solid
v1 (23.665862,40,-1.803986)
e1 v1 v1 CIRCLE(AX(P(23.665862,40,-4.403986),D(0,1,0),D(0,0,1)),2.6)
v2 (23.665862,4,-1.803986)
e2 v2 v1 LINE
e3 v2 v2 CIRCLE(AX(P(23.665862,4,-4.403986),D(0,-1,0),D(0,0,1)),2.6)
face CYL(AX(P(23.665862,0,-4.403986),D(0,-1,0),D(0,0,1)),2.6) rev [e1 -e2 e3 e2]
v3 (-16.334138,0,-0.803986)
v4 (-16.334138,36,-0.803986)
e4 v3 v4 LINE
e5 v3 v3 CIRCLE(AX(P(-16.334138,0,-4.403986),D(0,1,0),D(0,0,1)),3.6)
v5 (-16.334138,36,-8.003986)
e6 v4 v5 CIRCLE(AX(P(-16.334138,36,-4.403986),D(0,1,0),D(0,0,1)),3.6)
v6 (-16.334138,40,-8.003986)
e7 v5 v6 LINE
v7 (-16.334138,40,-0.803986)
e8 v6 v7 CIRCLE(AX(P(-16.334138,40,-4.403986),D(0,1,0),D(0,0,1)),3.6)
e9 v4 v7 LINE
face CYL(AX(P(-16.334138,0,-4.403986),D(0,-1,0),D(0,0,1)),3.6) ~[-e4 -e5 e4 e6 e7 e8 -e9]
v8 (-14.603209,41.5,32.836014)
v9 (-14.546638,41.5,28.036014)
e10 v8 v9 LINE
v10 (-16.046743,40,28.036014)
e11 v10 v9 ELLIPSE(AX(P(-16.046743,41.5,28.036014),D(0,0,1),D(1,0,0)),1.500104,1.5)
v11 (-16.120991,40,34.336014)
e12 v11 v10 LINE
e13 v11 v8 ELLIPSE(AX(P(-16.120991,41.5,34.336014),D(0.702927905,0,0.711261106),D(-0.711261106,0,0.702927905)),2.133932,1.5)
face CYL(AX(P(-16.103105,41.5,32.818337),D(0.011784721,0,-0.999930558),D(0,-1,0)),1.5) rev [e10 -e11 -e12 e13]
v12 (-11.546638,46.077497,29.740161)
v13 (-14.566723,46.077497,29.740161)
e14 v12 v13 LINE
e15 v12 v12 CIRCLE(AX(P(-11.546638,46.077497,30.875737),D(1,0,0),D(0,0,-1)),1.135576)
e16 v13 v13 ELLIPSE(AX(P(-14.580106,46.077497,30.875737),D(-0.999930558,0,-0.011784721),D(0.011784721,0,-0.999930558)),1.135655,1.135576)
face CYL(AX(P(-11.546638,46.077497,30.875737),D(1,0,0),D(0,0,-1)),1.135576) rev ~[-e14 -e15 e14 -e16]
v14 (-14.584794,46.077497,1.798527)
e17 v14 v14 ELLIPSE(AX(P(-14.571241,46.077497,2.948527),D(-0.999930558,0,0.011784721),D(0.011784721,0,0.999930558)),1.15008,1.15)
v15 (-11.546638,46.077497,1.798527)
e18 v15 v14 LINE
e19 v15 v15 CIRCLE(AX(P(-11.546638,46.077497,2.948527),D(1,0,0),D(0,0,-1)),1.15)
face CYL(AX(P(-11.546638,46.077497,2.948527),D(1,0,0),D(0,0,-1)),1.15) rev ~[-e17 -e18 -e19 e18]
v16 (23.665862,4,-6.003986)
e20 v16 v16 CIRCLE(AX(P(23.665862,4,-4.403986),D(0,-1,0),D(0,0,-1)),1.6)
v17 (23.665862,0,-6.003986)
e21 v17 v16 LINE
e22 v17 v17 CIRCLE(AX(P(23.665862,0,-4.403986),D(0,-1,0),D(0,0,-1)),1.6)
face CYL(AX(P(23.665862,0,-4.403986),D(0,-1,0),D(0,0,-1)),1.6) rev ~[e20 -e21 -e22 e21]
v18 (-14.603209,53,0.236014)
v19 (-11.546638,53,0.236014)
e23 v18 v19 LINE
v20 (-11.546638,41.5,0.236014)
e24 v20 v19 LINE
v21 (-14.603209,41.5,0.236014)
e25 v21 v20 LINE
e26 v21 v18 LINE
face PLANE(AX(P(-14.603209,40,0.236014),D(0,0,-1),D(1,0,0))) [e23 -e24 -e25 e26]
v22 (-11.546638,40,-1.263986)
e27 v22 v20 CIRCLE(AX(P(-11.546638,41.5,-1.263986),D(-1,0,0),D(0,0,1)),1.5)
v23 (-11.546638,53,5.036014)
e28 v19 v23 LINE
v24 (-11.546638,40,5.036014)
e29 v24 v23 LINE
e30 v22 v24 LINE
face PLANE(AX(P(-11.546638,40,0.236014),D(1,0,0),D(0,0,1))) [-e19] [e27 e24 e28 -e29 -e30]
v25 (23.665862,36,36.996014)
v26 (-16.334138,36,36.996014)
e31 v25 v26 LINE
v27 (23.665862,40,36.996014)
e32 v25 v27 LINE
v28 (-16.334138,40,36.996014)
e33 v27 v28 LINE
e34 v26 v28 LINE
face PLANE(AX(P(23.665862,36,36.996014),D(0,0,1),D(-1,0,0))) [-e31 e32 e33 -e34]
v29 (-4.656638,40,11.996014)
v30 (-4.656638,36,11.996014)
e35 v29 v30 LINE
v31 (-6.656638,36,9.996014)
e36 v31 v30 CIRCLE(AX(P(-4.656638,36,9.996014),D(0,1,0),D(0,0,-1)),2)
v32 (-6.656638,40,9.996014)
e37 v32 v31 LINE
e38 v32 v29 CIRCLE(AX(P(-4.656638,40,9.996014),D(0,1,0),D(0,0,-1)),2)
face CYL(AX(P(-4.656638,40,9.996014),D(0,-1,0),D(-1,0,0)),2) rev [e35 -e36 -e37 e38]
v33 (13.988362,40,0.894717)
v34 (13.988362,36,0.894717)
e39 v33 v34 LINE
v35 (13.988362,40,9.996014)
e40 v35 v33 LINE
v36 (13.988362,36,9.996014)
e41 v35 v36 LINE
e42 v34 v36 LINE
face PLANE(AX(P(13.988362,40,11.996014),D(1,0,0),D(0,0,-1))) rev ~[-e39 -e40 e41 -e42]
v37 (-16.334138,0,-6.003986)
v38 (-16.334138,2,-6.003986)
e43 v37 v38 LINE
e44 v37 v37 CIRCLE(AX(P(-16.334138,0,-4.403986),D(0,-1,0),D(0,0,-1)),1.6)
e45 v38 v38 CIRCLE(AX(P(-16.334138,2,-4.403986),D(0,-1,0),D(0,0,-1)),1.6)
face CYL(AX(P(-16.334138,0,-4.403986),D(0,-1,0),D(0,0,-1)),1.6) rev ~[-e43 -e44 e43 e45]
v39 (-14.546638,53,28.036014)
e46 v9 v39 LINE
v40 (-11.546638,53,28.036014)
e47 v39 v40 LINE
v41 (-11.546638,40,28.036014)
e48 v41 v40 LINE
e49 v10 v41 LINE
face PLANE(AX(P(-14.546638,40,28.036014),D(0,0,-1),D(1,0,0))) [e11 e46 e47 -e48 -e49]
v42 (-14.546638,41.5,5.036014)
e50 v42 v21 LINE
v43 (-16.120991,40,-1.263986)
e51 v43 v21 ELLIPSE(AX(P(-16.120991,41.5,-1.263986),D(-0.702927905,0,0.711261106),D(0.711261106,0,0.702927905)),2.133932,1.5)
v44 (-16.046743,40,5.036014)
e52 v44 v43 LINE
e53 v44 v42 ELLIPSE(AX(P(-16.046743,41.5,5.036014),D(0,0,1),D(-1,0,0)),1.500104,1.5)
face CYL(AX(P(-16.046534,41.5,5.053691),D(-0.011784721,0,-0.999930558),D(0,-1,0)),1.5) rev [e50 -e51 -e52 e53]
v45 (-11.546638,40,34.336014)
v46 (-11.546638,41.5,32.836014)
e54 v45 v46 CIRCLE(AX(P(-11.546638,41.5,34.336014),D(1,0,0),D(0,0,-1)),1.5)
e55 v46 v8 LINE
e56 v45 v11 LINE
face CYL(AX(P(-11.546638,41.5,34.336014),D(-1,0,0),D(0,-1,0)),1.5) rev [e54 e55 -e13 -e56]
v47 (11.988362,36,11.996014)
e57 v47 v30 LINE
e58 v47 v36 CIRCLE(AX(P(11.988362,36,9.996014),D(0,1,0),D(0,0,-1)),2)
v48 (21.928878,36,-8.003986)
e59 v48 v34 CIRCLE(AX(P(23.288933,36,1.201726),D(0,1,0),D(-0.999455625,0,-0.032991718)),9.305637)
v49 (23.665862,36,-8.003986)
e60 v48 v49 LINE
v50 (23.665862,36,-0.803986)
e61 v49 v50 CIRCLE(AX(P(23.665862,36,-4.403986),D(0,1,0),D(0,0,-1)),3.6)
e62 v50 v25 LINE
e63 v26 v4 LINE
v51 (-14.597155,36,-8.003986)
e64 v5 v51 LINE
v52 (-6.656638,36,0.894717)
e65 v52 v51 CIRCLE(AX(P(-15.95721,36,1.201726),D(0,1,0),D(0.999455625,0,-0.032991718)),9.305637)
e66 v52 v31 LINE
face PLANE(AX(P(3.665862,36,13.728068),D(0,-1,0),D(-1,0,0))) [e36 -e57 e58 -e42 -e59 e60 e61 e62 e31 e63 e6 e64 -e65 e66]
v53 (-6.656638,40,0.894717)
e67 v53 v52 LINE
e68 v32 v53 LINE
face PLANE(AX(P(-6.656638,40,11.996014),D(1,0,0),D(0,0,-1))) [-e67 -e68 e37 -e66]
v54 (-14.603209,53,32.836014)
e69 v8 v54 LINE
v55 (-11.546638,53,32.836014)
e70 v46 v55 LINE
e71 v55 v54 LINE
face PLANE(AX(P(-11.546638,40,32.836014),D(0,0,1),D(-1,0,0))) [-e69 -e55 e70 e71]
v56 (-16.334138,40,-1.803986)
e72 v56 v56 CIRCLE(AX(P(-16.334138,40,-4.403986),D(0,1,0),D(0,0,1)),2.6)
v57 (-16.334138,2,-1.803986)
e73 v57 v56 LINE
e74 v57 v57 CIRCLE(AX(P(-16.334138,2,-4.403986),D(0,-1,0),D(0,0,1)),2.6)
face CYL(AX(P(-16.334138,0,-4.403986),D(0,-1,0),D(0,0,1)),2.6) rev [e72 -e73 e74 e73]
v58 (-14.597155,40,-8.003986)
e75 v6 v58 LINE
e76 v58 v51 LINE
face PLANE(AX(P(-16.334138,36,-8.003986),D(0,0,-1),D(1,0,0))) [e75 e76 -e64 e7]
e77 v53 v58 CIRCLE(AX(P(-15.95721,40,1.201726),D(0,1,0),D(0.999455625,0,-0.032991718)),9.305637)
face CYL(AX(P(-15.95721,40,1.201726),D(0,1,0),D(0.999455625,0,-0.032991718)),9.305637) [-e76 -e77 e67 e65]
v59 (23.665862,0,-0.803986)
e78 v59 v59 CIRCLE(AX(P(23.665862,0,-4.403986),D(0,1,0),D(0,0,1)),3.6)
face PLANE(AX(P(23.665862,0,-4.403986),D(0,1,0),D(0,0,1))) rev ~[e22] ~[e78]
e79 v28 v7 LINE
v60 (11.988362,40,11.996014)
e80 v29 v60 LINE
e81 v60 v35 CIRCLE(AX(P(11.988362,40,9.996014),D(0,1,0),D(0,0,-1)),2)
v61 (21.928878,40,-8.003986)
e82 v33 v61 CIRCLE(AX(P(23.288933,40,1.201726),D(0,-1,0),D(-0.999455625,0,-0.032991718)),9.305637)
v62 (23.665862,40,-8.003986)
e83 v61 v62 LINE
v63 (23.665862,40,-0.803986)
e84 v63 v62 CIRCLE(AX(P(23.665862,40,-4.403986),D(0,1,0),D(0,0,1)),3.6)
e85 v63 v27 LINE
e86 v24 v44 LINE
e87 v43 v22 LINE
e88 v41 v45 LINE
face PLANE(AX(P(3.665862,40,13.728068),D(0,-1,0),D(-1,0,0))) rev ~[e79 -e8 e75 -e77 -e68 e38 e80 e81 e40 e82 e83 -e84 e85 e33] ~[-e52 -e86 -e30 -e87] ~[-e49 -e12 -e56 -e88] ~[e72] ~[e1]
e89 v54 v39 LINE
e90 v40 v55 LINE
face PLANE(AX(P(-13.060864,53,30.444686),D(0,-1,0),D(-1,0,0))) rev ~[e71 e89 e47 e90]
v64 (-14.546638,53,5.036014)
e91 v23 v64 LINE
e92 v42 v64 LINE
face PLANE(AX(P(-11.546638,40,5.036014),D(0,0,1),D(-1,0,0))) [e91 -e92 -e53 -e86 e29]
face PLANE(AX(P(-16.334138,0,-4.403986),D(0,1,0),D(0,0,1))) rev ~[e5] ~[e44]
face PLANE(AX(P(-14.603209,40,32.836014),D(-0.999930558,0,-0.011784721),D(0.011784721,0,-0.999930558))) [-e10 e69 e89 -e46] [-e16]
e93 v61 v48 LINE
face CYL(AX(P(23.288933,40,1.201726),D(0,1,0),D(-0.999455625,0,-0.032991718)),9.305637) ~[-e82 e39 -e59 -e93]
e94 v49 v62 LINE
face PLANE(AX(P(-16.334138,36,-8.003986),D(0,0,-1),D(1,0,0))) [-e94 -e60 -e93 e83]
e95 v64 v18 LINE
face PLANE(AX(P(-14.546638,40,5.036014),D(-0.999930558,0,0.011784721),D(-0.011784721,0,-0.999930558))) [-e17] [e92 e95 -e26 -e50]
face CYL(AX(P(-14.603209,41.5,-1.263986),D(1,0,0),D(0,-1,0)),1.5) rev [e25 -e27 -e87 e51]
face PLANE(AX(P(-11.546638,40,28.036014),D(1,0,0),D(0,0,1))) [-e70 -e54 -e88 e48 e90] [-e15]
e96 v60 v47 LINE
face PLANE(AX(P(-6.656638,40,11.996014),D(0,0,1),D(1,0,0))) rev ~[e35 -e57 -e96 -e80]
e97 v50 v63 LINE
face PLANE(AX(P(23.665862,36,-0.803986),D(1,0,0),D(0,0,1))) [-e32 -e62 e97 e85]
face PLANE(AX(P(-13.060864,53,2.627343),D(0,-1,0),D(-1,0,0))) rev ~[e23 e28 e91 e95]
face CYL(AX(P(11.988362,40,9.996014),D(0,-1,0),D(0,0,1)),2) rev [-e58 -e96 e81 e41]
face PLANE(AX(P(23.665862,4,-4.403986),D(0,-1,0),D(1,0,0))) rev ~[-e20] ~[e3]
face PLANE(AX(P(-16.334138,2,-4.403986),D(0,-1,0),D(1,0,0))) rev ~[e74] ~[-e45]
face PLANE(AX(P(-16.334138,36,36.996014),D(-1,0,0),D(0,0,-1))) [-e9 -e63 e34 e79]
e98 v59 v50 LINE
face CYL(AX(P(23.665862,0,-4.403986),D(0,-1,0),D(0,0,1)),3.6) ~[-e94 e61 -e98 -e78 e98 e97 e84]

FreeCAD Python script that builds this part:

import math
import FreeCAD as App
import Part
import Sketcher

V = App.Vector


def edges_at(feature, points):
    """Names of the edges that pass closest to the given points."""
    edges = feature.Shape.Edges
    near = lambda p: min(range(len(edges)), key=lambda i: edges[i].distToShape(Part.Vertex(*p))[0])
    return sorted({f"Edge{near(p) + 1}" for p in points})

doc = App.newDocument("Part")
body = doc.addObject("PartDesign::Body", "Body")

sketch1 = body.newObject("Sketcher::SketchObject", "Sketch")
sketch1.AttachmentSupport = (doc.getObject("XZ_Plane"), [""])
sketch1.MapMode = "FlatFace"
sketch1.addGeometry([
    Part.Circle(V(-16.3, -4.4, 0), V(0, 0, 1), 3.6),
    Part.Circle(V(-16.3, -4.4, 0), V(0, 0, 1), 2.6),
], False)
sketch1.addConstraint([
    Sketcher.Constraint("Coincident", 1, 3, 0, 3),
    Sketcher.Constraint("Diameter", 0, 7.2),
    Sketcher.Constraint("Diameter", 1, 5.2),
    Sketcher.Constraint("DistanceX", 0, 3, -1, 1, 16.334138),
    Sketcher.Constraint("DistanceY", 0, 3, -1, 1, 4.403986),
])
pad1 = body.newObject("PartDesign::Pad", "Pad")
pad1.Profile = sketch1
pad1.Length = 40
pad1.Reversed = True
body2 = doc.addObject("PartDesign::Body", "Body001")

sketch2 = body2.newObject("Sketcher::SketchObject", "Sketch001")
sketch2.AttachmentSupport = (doc.getObject("XZ_Plane001"), [""])
sketch2.MapMode = "FlatFace"
sketch2.addGeometry([
    Part.Circle(V(23.7, -4.4, 0), V(0, 0, 1), 3.6),
    Part.Circle(V(23.7, -4.4, 0), V(0, 0, 1), 2.6),
], False)
sketch2.addConstraint([
    Sketcher.Constraint("Coincident", 1, 3, 0, 3),
    Sketcher.Constraint("Diameter", 0, 7.2),
    Sketcher.Constraint("Diameter", 1, 5.2),
    Sketcher.Constraint("DistanceX", -1, 1, 0, 3, 23.665862),
    Sketcher.Constraint("DistanceY", 0, 3, -1, 1, 4.403986),
])
pad2 = body2.newObject("PartDesign::Pad", "Pad001")
pad2.Profile = sketch2
pad2.Length = 40
pad2.Reversed = True
body.AllowCompound = True
doc.recompute()

boolean = body.newObject("PartDesign::Boolean", "Boolean")
boolean.Type = "Fuse"
boolean.addObjects([body2])

sketch3 = body.newObject("Sketcher::SketchObject", "Sketch002")
sketch3.AttachmentSupport = (doc.getObject("XZ_Plane"), [""])
sketch3.MapMode = "FlatFace"
sketch3.AttachmentOffset = App.Placement(V(0, 0, -36), App.Rotation())
sketch3.addGeometry([
    Part.LineSegment(V(23.7, -8, 0), V(-16.3, -8, 0)),
    Part.ArcOfCircle(Part.Circle(V(-16.3, -4.4, 0), V(0, 0, 1), 3.6), math.radians(-90), math.radians(90)),
    Part.LineSegment(V(-16.3, -0.8, 0), V(-16.3, 37, 0)),
    Part.LineSegment(V(-16.3, 37, 0), V(23.7, 37, 0)),
    Part.LineSegment(V(23.7, 37, 0), V(23.7, -0.8, 0)),
    Part.ArcOfCircle(Part.Circle(V(23.7, -4.4, 0), V(0, 0, 1), 3.6), math.radians(90), math.radians(270)),
], False)
sketch3.addConstraint([
    Sketcher.Constraint("Tangent", 0, 2, 1, 1),
    Sketcher.Constraint("Coincident", 1, 2, 2, 1),
    Sketcher.Constraint("Coincident", 2, 2, 3, 1),
    Sketcher.Constraint("Coincident", 3, 2, 4, 1),
    Sketcher.Constraint("Coincident", 4, 2, 5, 1),
    Sketcher.Constraint("Tangent", 5, 2, 0, 1),
    Sketcher.Constraint("Horizontal", 0),
    Sketcher.Constraint("Vertical", 2),
    Sketcher.Constraint("Horizontal", 3),
    Sketcher.Constraint("Vertical", 4),
    Sketcher.Constraint("Equal", 1, 5),
    Sketcher.Constraint("Vertical", 0, 2, 1, 2),
    Sketcher.Constraint("Vertical", 5, 3, 3, 2),
    Sketcher.Constraint("Radius", 1, 3.6),
    Sketcher.Constraint("DistanceX", 0, 2, 0, 1, 40.0),
    Sketcher.Constraint("DistanceY", 2, 1, 2, 2, 37.8),
    Sketcher.Constraint("DistanceX", 1, 3, -1, 1, 16.334138),
    Sketcher.Constraint("DistanceY", 1, 3, -1, 1, 4.403986),
])
pad3 = body.newObject("PartDesign::Pad", "Pad002")
pad3.Profile = sketch3
pad3.Length = 4
pad3.Reversed = True

sketch4 = body.newObject("Sketcher::SketchObject", "Sketch003")
sketch4.AttachmentSupport = (doc.getObject("XZ_Plane"), [""])
sketch4.MapMode = "FlatFace"
sketch4.AttachmentOffset = App.Placement(V(0, 0, -40), App.Rotation())
sketch4.addGeometry([
    Part.LineSegment(V(-7, -8, 0), V(-7, 12, 0)),
    Part.LineSegment(V(-7, 12, 0), V(14, 12, 0)),
    Part.LineSegment(V(14, 12, 0), V(14, -8, 0)),
    Part.LineSegment(V(14, -8, 0), V(-7, -8, 0)),
], False)
sketch4.addConstraint([
    Sketcher.Constraint("Coincident", 0, 2, 1, 1),
    Sketcher.Constraint("Coincident", 1, 2, 2, 1),
    Sketcher.Constraint("Coincident", 2, 2, 3, 1),
    Sketcher.Constraint("Coincident", 3, 2, 0, 1),
    Sketcher.Constraint("Vertical", 0),
    Sketcher.Constraint("Horizontal", 1),
    Sketcher.Constraint("Vertical", 2),
    Sketcher.Constraint("Horizontal", 3),
    Sketcher.Constraint("DistanceY", 0, 1, 0, 2, 20.0),
    Sketcher.Constraint("DistanceX", 1, 1, 1, 2, 20.645),
    Sketcher.Constraint("DistanceX", 0, 2, -1, 1, 6.656638),
    Sketcher.Constraint("DistanceY", -1, 1, 0, 2, 11.996014),
])
pocket1 = body.newObject("PartDesign::Pocket", "Pocket")
pocket1.Profile = sketch4
pocket1.Length = 10
pocket1.Reversed = True

sketch5 = body.newObject("Sketcher::SketchObject", "Sketch004")
sketch5.AttachmentSupport = (doc.getObject("XZ_Plane"), [""])
sketch5.MapMode = "FlatFace"
sketch5.AttachmentOffset = App.Placement(V(0, 0, -40), App.Rotation())
sketch5.addGeometry([
    Part.LineSegment(V(-14.5, 5, 0), V(-11.5, 5, 0)),
    Part.LineSegment(V(-11.5, 5, 0), V(-11.5, 0.2, 0)),
    Part.LineSegment(V(-11.5, 0.2, 0), V(-14.6, 0.2, 0)),
    Part.LineSegment(V(-14.6, 0.2, 0), V(-14.5, 5, 0)),
    Part.LineSegment(V(-11.5, 28, 0), V(-14.5, 28, 0)),
    Part.LineSegment(V(-14.5, 28, 0), V(-14.6, 32.8, 0)),
    Part.LineSegment(V(-14.6, 32.8, 0), V(-11.5, 32.8, 0)),
    Part.LineSegment(V(-11.5, 32.8, 0), V(-11.5, 28, 0)),
], False)
sketch5.addConstraint([
    Sketcher.Constraint("Coincident", 0, 2, 1, 1),
    Sketcher.Constraint("Coincident", 1, 2, 2, 1),
    Sketcher.Constraint("Coincident", 2, 2, 3, 1),
    Sketcher.Constraint("Coincident", 3, 2, 0, 1),
    Sketcher.Constraint("Coincident", 4, 2, 5, 1),
    Sketcher.Constraint("Coincident", 5, 2, 6, 1),
    Sketcher.Constraint("Coincident", 6, 2, 7, 1),
    Sketcher.Constraint("Coincident", 7, 2, 4, 1),
    Sketcher.Constraint("Horizontal", 0),
    Sketcher.Constraint("Vertical", 1),
    Sketcher.Constraint("Horizontal", 2),
    Sketcher.Constraint("Horizontal", 4),
    Sketcher.Constraint("Horizontal", 6),
    Sketcher.Constraint("Vertical", 7),
    Sketcher.Constraint("Vertical", 3, 2, 4, 2),
    Sketcher.Constraint("Vertical", 2, 2, 5, 2),
    Sketcher.Constraint("Vertical", 1, 2, 6, 2),
    Sketcher.Constraint("Equal", 1, 7),
    Sketcher.Constraint("DistanceX", 0, 1, 0, 2, 3.0),
    Sketcher.Constraint("DistanceY", 1, 2, 1, 1, 4.8),
    Sketcher.Constraint("DistanceY", 3, 2, 4, 2, 23.0),
    Sketcher.Constraint("DistanceX", 2, 2, 2, 1, 3.056571),
    Sketcher.Constraint("DistanceX", 0, 2, -1, 1, 11.546638),
    Sketcher.Constraint("DistanceY", -1, 1, 0, 2, 5.036014),
])
pad4 = body.newObject("PartDesign::Pad", "Pad003")
pad4.Profile = sketch5
pad4.Length = 13
pad4.Reversed = True
doc.recompute()

fillet = body.newObject("PartDesign::Fillet", "Fillet")
fillet.Base = (pad4, edges_at(pad4, [
    (-13.075, 40, 32.836),
    (-14.575, 40, 30.436),
    (-13.075, 40, 0.236),
    (-14.575, 40, 2.636),
]))
fillet.Radius = 1.5

sketch6 = body.newObject("Sketcher::SketchObject", "Sketch005")
sketch6.AttachmentSupport = (doc.getObject("YZ_Plane"), [""])
sketch6.MapMode = "FlatFace"
sketch6.AttachmentOffset = App.Placement(V(0, 0, -11.546638), App.Rotation())
sketch6.addGeometry([
    Part.Circle(V(46.1, 30.9, 0), V(0, 0, 1), 1.1),
    Part.Circle(V(46.1, 2.9, 0), V(0, 0, 1), 1.1),
], False)
sketch6.addConstraint([
    Sketcher.Constraint("Vertical", 0, 3, 1, 3),
    Sketcher.Constraint("Diameter", 1, 2.3),
    Sketcher.Constraint("Diameter", 0, 2.271151),
    Sketcher.Constraint("DistanceY", 1, 3, 0, 3, 27.92721),
    Sketcher.Constraint("DistanceX", -1, 1, 0, 3, 46.077497),
    Sketcher.Constraint("DistanceY", -1, 1, 0, 3, 30.875737),
])
pocket2 = body.newObject("PartDesign::Pocket", "Pocket001")
pocket2.Profile = sketch6
pocket2.Length = 13
doc.recompute()

fillet2 = body.newObject("PartDesign::Fillet", "Fillet001")
fillet2.Base = (pocket2, edges_at(pocket2, [
    (-6.657, 38, 11.996),
    (-6.657, 38, -8.004),
    (13.988, 38, -8.004),
    (13.988, 38, 11.996),
]))
fillet2.Radius = 2

sketch7 = body.newObject("Sketcher::SketchObject", "Sketch006")
sketch7.AttachmentSupport = (doc.getObject("XZ_Plane"), [""])
sketch7.MapMode = "FlatFace"
sketch7.addGeometry([
    Part.Circle(V(-16.3, -4.4, 0), V(0, 0, 1), 2.9),
    Part.Circle(V(-16.3, -4.4, 0), V(0, 0, 1), 1.6),
], False)
sketch7.addConstraint([
    Sketcher.Constraint("Coincident", 1, 3, 0, 3),
    Sketcher.Constraint("Diameter", 1, 3.2),
    Sketcher.Constraint("Diameter", 0, 5.70326),
    Sketcher.Constraint("DistanceX", 0, 3, -1, 1, 16.334138),
    Sketcher.Constraint("DistanceY", 0, 3, -1, 1, 4.403986),
])
pad5 = body.newObject("PartDesign::Pad", "Pad004")
pad5.Profile = sketch7
pad5.Length = 2
pad5.Reversed = True

sketch8 = body.newObject("Sketcher::SketchObject", "Sketch007")
sketch8.AttachmentSupport = (doc.getObject("XZ_Plane"), [""])
sketch8.MapMode = "FlatFace"
sketch8.addGeometry([
    Part.Circle(V(23.7, -4.4, 0), V(0, 0, 1), 2.9),
    Part.Circle(V(23.7, -4.4, 0), V(0, 0, 1), 1.6),
], False)
sketch8.addConstraint([
    Sketcher.Constraint("Coincident", 1, 3, 0, 3),
    Sketcher.Constraint("Diameter", 1, 3.2),
    Sketcher.Constraint("Diameter", 0, 5.791583),
    Sketcher.Constraint("DistanceX", -1, 1, 0, 3, 23.665862),
    Sketcher.Constraint("DistanceY", 0, 3, -1, 1, 4.403986),
])
pad6 = body.newObject("PartDesign::Pad", "Pad005")
pad6.Profile = sketch8
pad6.Length = 4
pad6.Reversed = True

sketch9 = body.newObject("Sketcher::SketchObject", "Sketch008")
sketch9.AttachmentSupport = (doc.getObject("XZ_Plane"), [""])
sketch9.MapMode = "FlatFace"
sketch9.AttachmentOffset = App.Placement(V(0, 0, -40), App.Rotation())
sketch9.addGeometry([
    Part.LineSegment(V(-7, -8, 0), V(-15, -8, 0)),
    Part.ArcOfCircle(Part.Circle(V(-16, 1, 0), V(0, 0, 1), 9), math.radians(-82), math.radians(-2)),
    Part.LineSegment(V(-7, 1, 0), V(-7, -8, 0)),
], False)
sketch9.addConstraint([
    Sketcher.Constraint("Coincident", 0, 2, 1, 1),
    Sketcher.Constraint("Coincident", 1, 2, 2, 1),
    Sketcher.Constraint("Coincident", 2, 2, 0, 1),
    Sketcher.Constraint("Horizontal", 0),
    Sketcher.Constraint("Radius", 1, 9.305637),
    Sketcher.Constraint("Distance", 2, 8.899659),
    Sketcher.Constraint("DistanceX", 0, 2, 0, 1, 8.070936),
    Sketcher.Constraint("DistanceX", 1, 3, -1, 1, 15.95721),
    Sketcher.Constraint("DistanceX", 2, 2, -1, 1, 6.526218),
    Sketcher.Constraint("DistanceY", -1, 1, 1, 3, 1.201726),
])
pocket3 = body.newObject("PartDesign::Pocket", "Pocket002")
pocket3.Profile = sketch9
pocket3.Length = 10
pocket3.Reversed = True
doc.recompute()

datumplane = body.newObject("PartDesign::Plane", "DatumPlane")
datumplane.AttachmentSupport = (doc.getObject("YZ_Plane"), [""])
datumplane.MapMode = "FlatFace"
datumplane.AttachmentOffset = App.Placement(V(0, 0, 3.665862), App.Rotation())
mirrored = body.newObject("PartDesign::Mirrored", "Mirrored")
mirrored.Originals = [pocket3]
mirrored.MirrorPlane = (datumplane, [""])
body.Tip = mirrored

doc.recompute()
